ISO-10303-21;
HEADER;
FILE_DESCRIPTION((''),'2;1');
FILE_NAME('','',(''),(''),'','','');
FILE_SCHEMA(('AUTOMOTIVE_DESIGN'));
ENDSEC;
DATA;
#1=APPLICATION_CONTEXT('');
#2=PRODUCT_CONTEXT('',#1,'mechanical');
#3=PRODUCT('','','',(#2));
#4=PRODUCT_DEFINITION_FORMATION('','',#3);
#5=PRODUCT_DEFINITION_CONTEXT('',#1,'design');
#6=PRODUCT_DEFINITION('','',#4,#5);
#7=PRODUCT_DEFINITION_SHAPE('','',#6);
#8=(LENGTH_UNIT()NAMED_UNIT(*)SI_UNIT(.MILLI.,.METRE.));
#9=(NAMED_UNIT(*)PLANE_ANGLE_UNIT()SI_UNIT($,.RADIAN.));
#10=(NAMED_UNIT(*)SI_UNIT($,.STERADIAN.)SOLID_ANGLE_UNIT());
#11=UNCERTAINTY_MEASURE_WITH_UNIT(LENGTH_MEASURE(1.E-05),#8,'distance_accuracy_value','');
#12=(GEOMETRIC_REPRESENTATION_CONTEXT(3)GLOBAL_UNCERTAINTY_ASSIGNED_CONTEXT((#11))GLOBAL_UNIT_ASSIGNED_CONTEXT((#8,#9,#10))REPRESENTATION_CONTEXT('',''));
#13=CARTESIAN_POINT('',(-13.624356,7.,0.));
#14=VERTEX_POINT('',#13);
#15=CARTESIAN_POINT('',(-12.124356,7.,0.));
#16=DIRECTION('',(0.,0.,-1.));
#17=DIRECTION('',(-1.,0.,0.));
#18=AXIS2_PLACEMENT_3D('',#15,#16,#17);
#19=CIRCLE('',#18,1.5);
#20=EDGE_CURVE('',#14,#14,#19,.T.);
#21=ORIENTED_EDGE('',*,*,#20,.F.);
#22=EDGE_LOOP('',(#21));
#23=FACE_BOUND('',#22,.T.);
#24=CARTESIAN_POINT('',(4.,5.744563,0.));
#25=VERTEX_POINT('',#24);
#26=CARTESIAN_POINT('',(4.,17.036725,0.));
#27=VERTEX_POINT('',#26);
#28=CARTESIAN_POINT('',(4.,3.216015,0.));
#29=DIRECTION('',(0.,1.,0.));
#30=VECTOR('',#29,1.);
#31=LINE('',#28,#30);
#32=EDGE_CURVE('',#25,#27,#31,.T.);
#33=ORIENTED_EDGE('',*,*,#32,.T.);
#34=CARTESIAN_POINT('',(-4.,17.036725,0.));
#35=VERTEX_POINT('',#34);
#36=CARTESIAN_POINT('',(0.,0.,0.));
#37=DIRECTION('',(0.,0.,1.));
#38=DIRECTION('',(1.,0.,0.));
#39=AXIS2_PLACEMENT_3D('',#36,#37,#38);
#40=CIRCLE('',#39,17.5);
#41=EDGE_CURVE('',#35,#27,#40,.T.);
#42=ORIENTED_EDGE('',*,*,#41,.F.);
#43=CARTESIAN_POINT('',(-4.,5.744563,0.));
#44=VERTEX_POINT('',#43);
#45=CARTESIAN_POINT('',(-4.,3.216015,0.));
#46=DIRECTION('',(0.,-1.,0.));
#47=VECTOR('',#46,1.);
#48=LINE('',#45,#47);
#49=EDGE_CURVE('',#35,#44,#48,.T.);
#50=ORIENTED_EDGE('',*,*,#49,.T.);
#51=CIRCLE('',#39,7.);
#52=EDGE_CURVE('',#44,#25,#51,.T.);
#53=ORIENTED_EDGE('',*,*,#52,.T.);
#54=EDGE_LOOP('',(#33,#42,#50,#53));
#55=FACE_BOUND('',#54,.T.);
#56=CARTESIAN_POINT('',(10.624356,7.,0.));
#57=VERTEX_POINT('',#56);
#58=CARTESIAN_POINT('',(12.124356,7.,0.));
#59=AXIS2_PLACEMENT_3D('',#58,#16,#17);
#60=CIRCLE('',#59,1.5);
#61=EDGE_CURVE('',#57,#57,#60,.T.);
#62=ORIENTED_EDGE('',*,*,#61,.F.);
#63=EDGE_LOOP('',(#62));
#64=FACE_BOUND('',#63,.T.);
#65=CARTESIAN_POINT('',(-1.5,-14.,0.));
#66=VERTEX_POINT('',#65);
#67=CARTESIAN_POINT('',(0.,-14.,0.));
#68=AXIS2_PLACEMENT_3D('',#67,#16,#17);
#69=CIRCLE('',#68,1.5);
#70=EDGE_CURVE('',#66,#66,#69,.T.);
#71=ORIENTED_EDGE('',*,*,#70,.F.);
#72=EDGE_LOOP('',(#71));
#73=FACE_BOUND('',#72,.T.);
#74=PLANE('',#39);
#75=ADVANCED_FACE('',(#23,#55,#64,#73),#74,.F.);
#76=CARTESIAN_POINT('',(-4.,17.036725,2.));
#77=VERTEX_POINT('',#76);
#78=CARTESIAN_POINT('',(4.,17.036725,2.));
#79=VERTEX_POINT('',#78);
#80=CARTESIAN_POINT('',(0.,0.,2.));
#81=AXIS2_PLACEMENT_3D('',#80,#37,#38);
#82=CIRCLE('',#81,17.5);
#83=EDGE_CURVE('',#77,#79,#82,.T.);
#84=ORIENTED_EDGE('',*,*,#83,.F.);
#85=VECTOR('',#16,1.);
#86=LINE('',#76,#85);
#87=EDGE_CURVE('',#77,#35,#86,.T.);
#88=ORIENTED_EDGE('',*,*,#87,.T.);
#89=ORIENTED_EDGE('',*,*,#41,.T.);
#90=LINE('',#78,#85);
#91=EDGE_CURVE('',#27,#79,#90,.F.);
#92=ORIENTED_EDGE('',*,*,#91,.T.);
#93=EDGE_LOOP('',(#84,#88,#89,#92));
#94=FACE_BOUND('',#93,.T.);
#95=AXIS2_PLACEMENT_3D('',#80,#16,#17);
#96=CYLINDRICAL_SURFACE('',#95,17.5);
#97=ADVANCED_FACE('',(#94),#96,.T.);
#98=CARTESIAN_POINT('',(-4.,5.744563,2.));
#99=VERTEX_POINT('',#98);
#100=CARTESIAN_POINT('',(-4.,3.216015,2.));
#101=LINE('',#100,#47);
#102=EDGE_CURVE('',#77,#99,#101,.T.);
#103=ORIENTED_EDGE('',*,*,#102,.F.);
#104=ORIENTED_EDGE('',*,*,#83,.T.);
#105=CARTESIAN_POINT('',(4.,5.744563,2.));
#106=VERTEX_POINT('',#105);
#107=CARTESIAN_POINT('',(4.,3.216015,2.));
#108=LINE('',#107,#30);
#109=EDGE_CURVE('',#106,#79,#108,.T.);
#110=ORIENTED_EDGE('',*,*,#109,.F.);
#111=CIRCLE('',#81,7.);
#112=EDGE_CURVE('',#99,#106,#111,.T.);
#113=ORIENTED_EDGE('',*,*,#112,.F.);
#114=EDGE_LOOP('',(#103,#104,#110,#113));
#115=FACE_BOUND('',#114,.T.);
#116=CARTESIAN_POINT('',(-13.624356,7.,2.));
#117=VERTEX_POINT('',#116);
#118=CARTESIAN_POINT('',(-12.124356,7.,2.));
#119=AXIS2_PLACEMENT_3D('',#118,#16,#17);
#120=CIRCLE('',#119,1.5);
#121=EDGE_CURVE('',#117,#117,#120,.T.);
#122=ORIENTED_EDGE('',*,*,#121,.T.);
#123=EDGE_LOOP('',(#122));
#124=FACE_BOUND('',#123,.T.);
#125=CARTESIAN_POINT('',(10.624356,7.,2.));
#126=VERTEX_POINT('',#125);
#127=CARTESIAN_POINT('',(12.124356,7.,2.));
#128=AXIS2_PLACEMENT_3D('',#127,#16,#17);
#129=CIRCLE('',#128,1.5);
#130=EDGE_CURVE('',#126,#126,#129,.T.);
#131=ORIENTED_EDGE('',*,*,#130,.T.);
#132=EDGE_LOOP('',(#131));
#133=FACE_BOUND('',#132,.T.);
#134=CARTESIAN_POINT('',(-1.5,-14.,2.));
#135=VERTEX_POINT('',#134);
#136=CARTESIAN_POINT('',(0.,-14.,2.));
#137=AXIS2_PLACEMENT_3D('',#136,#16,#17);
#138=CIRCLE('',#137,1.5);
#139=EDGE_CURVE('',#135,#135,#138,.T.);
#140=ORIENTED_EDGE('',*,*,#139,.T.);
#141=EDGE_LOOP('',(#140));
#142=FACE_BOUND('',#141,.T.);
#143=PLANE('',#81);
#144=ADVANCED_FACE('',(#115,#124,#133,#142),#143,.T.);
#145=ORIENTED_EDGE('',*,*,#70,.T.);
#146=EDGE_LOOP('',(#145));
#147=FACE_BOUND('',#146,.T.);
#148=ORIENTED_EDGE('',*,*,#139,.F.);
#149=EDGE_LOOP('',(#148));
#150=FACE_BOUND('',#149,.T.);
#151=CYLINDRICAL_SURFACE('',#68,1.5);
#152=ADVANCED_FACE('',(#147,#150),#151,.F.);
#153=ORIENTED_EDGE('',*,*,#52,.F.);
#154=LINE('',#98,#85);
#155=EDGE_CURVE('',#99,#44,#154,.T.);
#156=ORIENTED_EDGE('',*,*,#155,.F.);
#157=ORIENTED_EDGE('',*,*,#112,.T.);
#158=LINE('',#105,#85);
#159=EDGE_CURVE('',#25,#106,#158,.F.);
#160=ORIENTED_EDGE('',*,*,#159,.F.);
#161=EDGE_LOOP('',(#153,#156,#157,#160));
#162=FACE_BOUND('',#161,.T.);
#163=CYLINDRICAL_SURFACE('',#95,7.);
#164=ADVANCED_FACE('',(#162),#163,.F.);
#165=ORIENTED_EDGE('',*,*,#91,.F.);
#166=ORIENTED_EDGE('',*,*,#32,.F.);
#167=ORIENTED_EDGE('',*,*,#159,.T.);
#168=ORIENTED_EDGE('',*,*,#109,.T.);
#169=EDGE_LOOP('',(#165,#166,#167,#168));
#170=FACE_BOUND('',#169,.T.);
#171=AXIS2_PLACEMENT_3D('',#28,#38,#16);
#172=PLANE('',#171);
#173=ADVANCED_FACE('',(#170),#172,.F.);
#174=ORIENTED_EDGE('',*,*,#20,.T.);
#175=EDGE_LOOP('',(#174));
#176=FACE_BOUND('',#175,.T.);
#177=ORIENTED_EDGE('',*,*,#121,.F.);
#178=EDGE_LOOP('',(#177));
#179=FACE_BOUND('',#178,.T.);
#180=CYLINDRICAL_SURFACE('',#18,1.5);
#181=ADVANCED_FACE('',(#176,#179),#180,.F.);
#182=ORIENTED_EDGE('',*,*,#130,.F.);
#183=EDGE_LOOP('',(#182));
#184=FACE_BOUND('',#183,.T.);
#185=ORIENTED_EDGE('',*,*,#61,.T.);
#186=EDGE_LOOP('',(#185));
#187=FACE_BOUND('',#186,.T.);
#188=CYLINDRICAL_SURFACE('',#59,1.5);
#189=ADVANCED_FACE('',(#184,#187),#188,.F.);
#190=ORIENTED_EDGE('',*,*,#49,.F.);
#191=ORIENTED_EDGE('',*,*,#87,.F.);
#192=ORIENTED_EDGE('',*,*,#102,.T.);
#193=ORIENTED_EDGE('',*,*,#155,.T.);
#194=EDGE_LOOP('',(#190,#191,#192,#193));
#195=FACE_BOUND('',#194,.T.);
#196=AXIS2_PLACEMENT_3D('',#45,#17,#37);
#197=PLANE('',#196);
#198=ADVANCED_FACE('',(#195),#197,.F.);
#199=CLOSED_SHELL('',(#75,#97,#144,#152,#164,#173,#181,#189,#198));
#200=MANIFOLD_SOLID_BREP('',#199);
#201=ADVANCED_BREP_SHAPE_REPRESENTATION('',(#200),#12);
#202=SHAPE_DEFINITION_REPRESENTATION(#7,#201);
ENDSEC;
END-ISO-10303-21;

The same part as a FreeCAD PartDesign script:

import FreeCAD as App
import Part
import Sketcher

V = App.Vector
Q = App.Units.Quantity


def add_polygon(sketch, points):
    """Adds a closed chain of lines whose ends are joined by coincident constraints."""
    first, n = sketch.GeometryCount, len(points)
    for a, b in zip(points, points[1:] + points[:1]):
        sketch.addGeometry(Part.LineSegment(App.Vector(*a, 0), App.Vector(*b, 0)), False)
    for i in range(n):
        sketch.addConstraint(Sketcher.Constraint("Coincident", first + i, 2, first + (i + 1) % n, 1))

doc = App.newDocument("Part")
body = doc.addObject("PartDesign::Body", "Body")

sketch1 = body.newObject("Sketcher::SketchObject", "Sketch")
sketch1.AttachmentSupport = (doc.getObject("XY_Plane"), [""])
sketch1.MapMode = "FlatFace"
sketch1.addGeometry(Part.Circle(V(0, 0, 0), V(0, 0, 1), 18), False)
sketch1.addGeometry(Part.Circle(V(0, 0, 0), V(0, 0, 1), 7), False)
sketch1.addConstraint(Sketcher.Constraint("Coincident", 0, 3, -1, 1))
sketch1.addConstraint(Sketcher.Constraint("Coincident", 1, 3, -1, 1))
sketch1.addConstraint(Sketcher.Constraint("Diameter", 0, Q("35 mm")))
sketch1.addConstraint(Sketcher.Constraint("Diameter", 1, Q("14 mm")))
pad1 = body.newObject("PartDesign::Pad", "Pad")
pad1.Profile = sketch1
pad1.Length = 2

sketch2 = body.newObject("Sketcher::SketchObject", "Sketch001")
sketch2.AttachmentSupport = (doc.getObject("XY_Plane"), [""])
sketch2.MapMode = "FlatFace"
sketch2.AttachmentOffset = App.Placement(V(0, 0, 2), App.Rotation())
add_polygon(sketch2, [(-4, 20), (-4, 3), (4, 3), (4, 20)])
sketch2.addConstraint(Sketcher.Constraint("Vertical", 0))
sketch2.addConstraint(Sketcher.Constraint("Horizontal", 1))
sketch2.addConstraint(Sketcher.Constraint("Vertical", 2))
sketch2.addConstraint(Sketcher.Constraint("Horizontal", 3))
sketch2.addConstraint(Sketcher.Constraint("DistanceX", 1, 1, 1, 2, Q("8 mm")))
sketch2.addConstraint(Sketcher.Constraint("DistanceX", 0, 2, -1, 1, Q("4 mm")))
sketch2.addConstraint(Sketcher.Constraint("DistanceY", 0, 2, 0, 1, Q("16.567513 mm")))
sketch2.addConstraint(Sketcher.Constraint("DistanceY", -1, 1, 0, 2, Q("3.216015 mm")))
pocket1 = body.newObject("PartDesign::Pocket", "Pocket")
pocket1.Profile = sketch2
pocket1.Length = 2

sketch3 = body.newObject("Sketcher::SketchObject", "Sketch002")
sketch3.AttachmentSupport = (doc.getObject("XY_Plane"), [""])
sketch3.MapMode = "FlatFace"
sketch3.addGeometry(Part.Circle(V(0, -14, 0), V(0, 0, 1), 1.5), False)
sketch3.addGeometry(Part.Circle(V(-12.1, 7, 0), V(0, 0, 1), 1.5), False)
sketch3.addGeometry(Part.Circle(V(12.1, 7, 0), V(0, 0, 1), 1.5), False)
sketch3.addConstraint(Sketcher.Constraint("Equal", 0, 1))
sketch3.addConstraint(Sketcher.Constraint("Equal", 1, 2))
sketch3.addConstraint(Sketcher.Constraint("Symmetric", 1, 3, 2, 3, -2))
sketch3.addConstraint(Sketcher.Constraint("PointOnObject", 0, 3, -2))
sketch3.addConstraint(Sketcher.Constraint("Diameter", 0, Q("3 mm")))
sketch3.addConstraint(Sketcher.Constraint("DistanceY", 0, 3, -1, 1, Q("14 mm")))
sketch3.addConstraint(Sketcher.Constraint("DistanceY", -1, 1, 1, 3, Q("7 mm")))
sketch3.addConstraint(Sketcher.Constraint("DistanceX", 1, 3, 2, 3, Q("24.248711 mm")))
doc.recompute()
hole = body.newObject("PartDesign::Hole", "Hole")
hole.Profile = sketch3
hole.ThreadType = "None"
hole.Diameter = 3
hole.DepthType = "ThroughAll"
hole.Reversed = True

doc.recompute()
